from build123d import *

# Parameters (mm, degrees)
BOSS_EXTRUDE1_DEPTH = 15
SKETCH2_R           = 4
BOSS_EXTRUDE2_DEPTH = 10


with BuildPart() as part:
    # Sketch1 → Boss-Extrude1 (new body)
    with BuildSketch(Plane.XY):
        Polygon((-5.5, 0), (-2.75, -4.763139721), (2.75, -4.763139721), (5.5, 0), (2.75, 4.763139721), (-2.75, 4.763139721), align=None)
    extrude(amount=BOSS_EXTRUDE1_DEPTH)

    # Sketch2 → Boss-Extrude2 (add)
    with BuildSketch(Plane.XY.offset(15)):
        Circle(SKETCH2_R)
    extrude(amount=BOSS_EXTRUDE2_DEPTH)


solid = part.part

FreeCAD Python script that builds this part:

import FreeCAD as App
import Part
import Sketcher
Q = App.Units.Quantity

doc = App.newDocument("Part")
body = doc.addObject("PartDesign::Body", "Body")

sketch1 = body.newObject("Sketcher::SketchObject", "Sketch")
sketch1.AttachmentSupport = (doc.getObject("XY_Plane"), [""])
sketch1.MapMode = "FlatFace"
sketch1.addGeometry([
    Part.LineSegment(App.Vector(-6, 0, 0), App.Vector(-3, -5, 0)),
    Part.LineSegment(App.Vector(-3, -5, 0), App.Vector(3, -5, 0)),
    Part.LineSegment(App.Vector(3, -5, 0), App.Vector(6, 0, 0)),
    Part.LineSegment(App.Vector(6, 0, 0), App.Vector(3, 5, 0)),
    Part.LineSegment(App.Vector(3, 5, 0), App.Vector(-3, 5, 0)),
    Part.LineSegment(App.Vector(-3, 5, 0), App.Vector(-6, 0, 0)),
], False)
sketch1.addConstraint([
    Sketcher.Constraint("Coincident", 0, 2, 1, 1),
    Sketcher.Constraint("Coincident", 1, 2, 2, 1),
    Sketcher.Constraint("Coincident", 2, 2, 3, 1),
    Sketcher.Constraint("Coincident", 3, 2, 4, 1),
    Sketcher.Constraint("Coincident", 4, 2, 5, 1),
    Sketcher.Constraint("Coincident", 5, 2, 0, 1),
    Sketcher.Constraint("Horizontal", 1),
    Sketcher.Constraint("Horizontal", 4),
    Sketcher.Constraint("Symmetric", 0, 2, 3, 2, -1, 1),
    Sketcher.Constraint("Symmetric", 2, 2, 5, 2, -1, 1),
    Sketcher.Constraint("PointOnObject", 2, 2, -1),
    Sketcher.Constraint("Parallel", 2, 5),
    Sketcher.Constraint("Vertical", 1, 2, 3, 2),
    Sketcher.Constraint("Angle", 0, Q("-60 deg")),
    Sketcher.Constraint("DistanceX", 1, 1, 1, 2, Q("5.5 mm")),
    Sketcher.Constraint("DistanceX", 5, 2, 2, 2, Q("11 mm")),
])
pad1 = body.newObject("PartDesign::Pad", "Pad")
pad1.Profile = sketch1
pad1.Length = 15

sketch2 = body.newObject("Sketcher::SketchObject", "Sketch001")
sketch2.AttachmentSupport = (doc.getObject("XY_Plane"), [""])
sketch2.MapMode = "FlatFace"
sketch2.AttachmentOffset = App.Placement(App.Vector(0, 0, 15), App.Rotation())
sketch2.addGeometry(Part.Circle(App.Vector(0, 0, 0), App.Vector(0, 0, 1), 4), False)
sketch2.addConstraint([
    Sketcher.Constraint("Coincident", 0, 3, -1, 1),
    Sketcher.Constraint("Diameter", 0, Q("8 mm")),
])
pad2 = body.newObject("PartDesign::Pad", "Pad001")
pad2.Profile = sketch2
pad2.Length = 10

doc.recompute()
